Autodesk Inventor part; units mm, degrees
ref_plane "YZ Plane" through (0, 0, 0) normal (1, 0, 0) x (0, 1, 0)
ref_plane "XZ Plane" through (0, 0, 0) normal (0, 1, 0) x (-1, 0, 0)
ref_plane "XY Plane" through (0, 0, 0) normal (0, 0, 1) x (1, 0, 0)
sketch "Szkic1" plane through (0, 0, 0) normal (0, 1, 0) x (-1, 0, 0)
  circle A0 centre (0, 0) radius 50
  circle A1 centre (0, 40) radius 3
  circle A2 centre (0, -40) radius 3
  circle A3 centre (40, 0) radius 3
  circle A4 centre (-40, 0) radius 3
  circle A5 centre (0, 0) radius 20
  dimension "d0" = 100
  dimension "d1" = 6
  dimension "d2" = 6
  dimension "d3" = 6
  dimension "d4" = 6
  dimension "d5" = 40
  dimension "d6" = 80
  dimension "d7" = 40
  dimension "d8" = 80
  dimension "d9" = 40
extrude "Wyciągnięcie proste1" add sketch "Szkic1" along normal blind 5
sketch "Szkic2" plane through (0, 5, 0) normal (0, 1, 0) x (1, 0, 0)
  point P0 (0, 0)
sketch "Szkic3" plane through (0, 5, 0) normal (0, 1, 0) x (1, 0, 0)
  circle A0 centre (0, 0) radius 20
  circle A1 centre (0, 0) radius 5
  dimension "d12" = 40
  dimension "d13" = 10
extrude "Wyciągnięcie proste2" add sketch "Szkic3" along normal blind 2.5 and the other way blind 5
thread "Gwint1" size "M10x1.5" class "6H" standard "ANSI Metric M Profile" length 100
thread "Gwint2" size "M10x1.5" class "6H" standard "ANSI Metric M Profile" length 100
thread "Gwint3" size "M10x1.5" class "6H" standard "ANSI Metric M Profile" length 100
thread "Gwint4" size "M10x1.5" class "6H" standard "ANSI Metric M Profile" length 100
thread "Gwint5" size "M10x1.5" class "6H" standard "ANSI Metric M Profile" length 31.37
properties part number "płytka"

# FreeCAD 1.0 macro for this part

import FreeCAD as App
import Part
import Sketcher
from FreeCAD import Vector
Q = App.Units.Quantity

doc = App.newDocument("Part")
body = doc.addObject("PartDesign::Body", "Body")

sketch1 = body.newObject("Sketcher::SketchObject", "Sketch")
sketch1.AttachmentSupport = (doc.getObject("XZ_Plane"), [""])
sketch1.MapMode = "FlatFace"
sketch1.addGeometry([
    Part.Circle(Vector(0, 0, 0), Vector(0, 0, 1), 50),
    Part.Circle(Vector(0, -40, 0), Vector(0, 0, 1), 3),
    Part.Circle(Vector(40, 0, 0), Vector(0, 0, 1), 3),
    Part.Circle(Vector(0, 0, 0), Vector(0, 0, 1), 20),
    Part.Circle(Vector(-40, 0, 0), Vector(0, 0, 1), 3),
    Part.Circle(Vector(0, 40, 0), Vector(0, 0, 1), 3),
], False)
sketch1.addConstraint([
    Sketcher.Constraint("Coincident", 0, 3, -1, 1),
    Sketcher.Constraint("Coincident", 3, 3, -1, 1),
    Sketcher.Constraint("Equal", 1, 2),
    Sketcher.Constraint("Equal", 2, 4),
    Sketcher.Constraint("Equal", 4, 5),
    Sketcher.Constraint("Symmetric", 2, 3, 4, 3, -1, 1),
    Sketcher.Constraint("Symmetric", 1, 3, 5, 3, -1, 1),
    Sketcher.Constraint("PointOnObject", 1, 3, -2),
    Sketcher.Constraint("PointOnObject", 2, 3, -1),
    Sketcher.Constraint("Diameter", 0, Q("100 mm")),
    Sketcher.Constraint("Diameter", 1, Q("6 mm")),
    Sketcher.Constraint("Diameter", 3, Q("40 mm")),
    Sketcher.Constraint("DistanceY", 1, 3, -1, 1, Q("40 mm")),
    Sketcher.Constraint("DistanceX", -1, 1, 2, 3, Q("40 mm")),
])
pad1 = body.newObject("PartDesign::Pad", "Pad")
pad1.Profile = sketch1
pad1.Length = 5
pad1.Reversed = True

sketch2 = body.newObject("Sketcher::SketchObject", "Sketch001")
sketch2.AttachmentSupport = (doc.getObject("XZ_Plane"), [""])
sketch2.MapMode = "FlatFace"
sketch2.AttachmentOffset = App.Placement(Vector(0, 0, -5), App.Rotation())
sketch2.addGeometry([
    Part.Circle(Vector(0, 0, 0), Vector(0, 0, 1), 20),
    Part.Circle(Vector(0, 0, 0), Vector(0, 0, 1), 5),
], False)
sketch2.addConstraint([
    Sketcher.Constraint("Coincident", 0, 3, -1, 1),
    Sketcher.Constraint("Coincident", 1, 3, -1, 1),
    Sketcher.Constraint("Diameter", 0, Q("40 mm")),
    Sketcher.Constraint("Diameter", 1, Q("10 mm")),
])
pad2 = body.newObject("PartDesign::Pad", "Pad001")
pad2.Profile = sketch2
pad2.Type = "TwoLengths"
pad2.Length = 2.5
pad2.Length2 = 5
pad2.Reversed = True

doc.recompute()
